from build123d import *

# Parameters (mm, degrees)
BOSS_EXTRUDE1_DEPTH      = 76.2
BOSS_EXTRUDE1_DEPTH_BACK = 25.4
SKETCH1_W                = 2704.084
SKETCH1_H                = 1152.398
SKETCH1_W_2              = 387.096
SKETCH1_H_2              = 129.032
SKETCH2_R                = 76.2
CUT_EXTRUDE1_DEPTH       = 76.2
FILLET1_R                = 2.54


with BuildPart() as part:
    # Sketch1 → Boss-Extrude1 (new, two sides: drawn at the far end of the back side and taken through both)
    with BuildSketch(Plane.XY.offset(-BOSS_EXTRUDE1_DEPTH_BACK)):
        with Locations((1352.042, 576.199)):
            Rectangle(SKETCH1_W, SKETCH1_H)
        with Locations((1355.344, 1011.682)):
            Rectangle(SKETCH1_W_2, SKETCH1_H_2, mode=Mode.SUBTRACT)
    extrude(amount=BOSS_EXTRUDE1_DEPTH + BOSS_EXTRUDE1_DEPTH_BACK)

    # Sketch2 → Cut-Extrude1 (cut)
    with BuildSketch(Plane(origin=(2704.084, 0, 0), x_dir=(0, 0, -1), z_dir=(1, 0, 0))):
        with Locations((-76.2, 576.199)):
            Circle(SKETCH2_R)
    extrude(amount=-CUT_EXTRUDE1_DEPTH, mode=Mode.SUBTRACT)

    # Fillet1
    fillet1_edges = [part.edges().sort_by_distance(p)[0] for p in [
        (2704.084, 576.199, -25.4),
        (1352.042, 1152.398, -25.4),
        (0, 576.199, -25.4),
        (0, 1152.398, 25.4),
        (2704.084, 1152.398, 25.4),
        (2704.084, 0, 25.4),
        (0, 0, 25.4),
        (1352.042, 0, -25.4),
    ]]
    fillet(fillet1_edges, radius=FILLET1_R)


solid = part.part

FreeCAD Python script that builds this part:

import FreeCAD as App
import Part
import Sketcher
Q = App.Units.Quantity


def edges_at(feature, points):
    """Names of the edges that pass closest to the given points."""
    edges = feature.Shape.Edges
    near = lambda p: min(range(len(edges)), key=lambda i: edges[i].distToShape(Part.Vertex(*p))[0])
    return sorted({f"Edge{near(p) + 1}" for p in points})

doc = App.newDocument("Part")
body = doc.addObject("PartDesign::Body", "Body")

# Sketch on XY plane
sketch1 = body.newObject("Sketcher::SketchObject", "Sketch")
sketch1.AttachmentSupport = (doc.getObject("XY_Plane"), [""])
sketch1.MapMode = "FlatFace"
sketch1.addGeometry(Part.LineSegment(App.Vector(0, 1152, 0), App.Vector(0, 0, 0)), False)
sketch1.addGeometry(Part.LineSegment(App.Vector(0, 0, 0), App.Vector(2704, 0, 0)), False)
sketch1.addGeometry(Part.LineSegment(App.Vector(2704, 0, 0), App.Vector(2704, 1152, 0)), False)
sketch1.addGeometry(Part.LineSegment(App.Vector(2704, 1152, 0), App.Vector(0, 1152, 0)), False)
sketch1.addGeometry(Part.LineSegment(App.Vector(1549, 947, 0), App.Vector(1162, 947, 0)), False)
sketch1.addGeometry(Part.LineSegment(App.Vector(1162, 947, 0), App.Vector(1162, 1076, 0)), False)
sketch1.addGeometry(Part.LineSegment(App.Vector(1162, 1076, 0), App.Vector(1549, 1076, 0)), False)
sketch1.addGeometry(Part.LineSegment(App.Vector(1549, 1076, 0), App.Vector(1549, 947, 0)), False)
sketch1.addConstraint(Sketcher.Constraint("Coincident", 0, 2, 1, 1))
sketch1.addConstraint(Sketcher.Constraint("Coincident", 1, 2, 2, 1))
sketch1.addConstraint(Sketcher.Constraint("Coincident", 2, 2, 3, 1))
sketch1.addConstraint(Sketcher.Constraint("Coincident", 3, 2, 0, 1))
sketch1.addConstraint(Sketcher.Constraint("Coincident", 4, 2, 5, 1))
sketch1.addConstraint(Sketcher.Constraint("Coincident", 5, 2, 6, 1))
sketch1.addConstraint(Sketcher.Constraint("Coincident", 6, 2, 7, 1))
sketch1.addConstraint(Sketcher.Constraint("Coincident", 7, 2, 4, 1))
sketch1.addConstraint(Sketcher.Constraint("Vertical", 0))
sketch1.addConstraint(Sketcher.Constraint("Horizontal", 1))
sketch1.addConstraint(Sketcher.Constraint("Vertical", 2))
sketch1.addConstraint(Sketcher.Constraint("Horizontal", 3))
sketch1.addConstraint(Sketcher.Constraint("Horizontal", 4))
sketch1.addConstraint(Sketcher.Constraint("Vertical", 5))
sketch1.addConstraint(Sketcher.Constraint("Horizontal", 6))
sketch1.addConstraint(Sketcher.Constraint("Vertical", 7))
sketch1.addConstraint(Sketcher.Constraint("Coincident", 0, 2, -1, 1))
sketch1.addConstraint(Sketcher.Constraint("DistanceY", 5, 2, 3, 2, Q("3 in")))
sketch1.addConstraint(Sketcher.Constraint("DistanceX", 1, 1, 1, 2, Q("106.46 in")))
sketch1.addConstraint(Sketcher.Constraint("DistanceX", 4, 2, 4, 1, Q("15.24 in")))
sketch1.addConstraint(Sketcher.Constraint("DistanceY", 0, 2, 0, 1, Q("45.37 in")))
sketch1.addConstraint(Sketcher.Constraint("DistanceY", 5, 1, 5, 2, Q("5.08 in")))
sketch1.addConstraint(Sketcher.Constraint("DistanceX", -1, 1, 4, 2, Q("45.74 in")))
pad1 = body.newObject("PartDesign::Pad", "Pad")
pad1.Profile = sketch1
pad1.Type = "TwoLengths"
pad1.Length = Q("3 in")
pad1.Length2 = Q("1 in")

# Sketch on YZ plane
sketch2 = body.newObject("Sketcher::SketchObject", "Sketch001")
sketch2.AttachmentSupport = (doc.getObject("YZ_Plane"), [""])
sketch2.MapMode = "FlatFace"
sketch2.AttachmentOffset = App.Placement(App.Vector(0, 0, 106.46 * 25.4), App.Rotation())
sketch2.addGeometry(Part.Circle(App.Vector(576, 76, 0), App.Vector(0, 0, 1), 76), False)
sketch2.addConstraint(Sketcher.Constraint("Diameter", 0, Q("6 in")))
sketch2.addConstraint(Sketcher.Constraint("DistanceY", -1, 1, 0, 3, Q("3 in")))
sketch2.addConstraint(Sketcher.Constraint("DistanceX", -1, 1, 0, 3, Q("22.685 in")))
pocket1 = body.newObject("PartDesign::Pocket", "Pocket")
pocket1.Profile = sketch2
pocket1.Length = Q("3 in")
doc.recompute()

fillet = body.newObject("PartDesign::Fillet", "Fillet")
fillet.Base = (pocket1, edges_at(pocket1, [
    (2704.084, 576.199, -25.4),
    (1352.042, 1152.398, -25.4),
    (0, 576.199, -25.4),
    (0, 1152.398, 25.4),
    (2704.084, 1152.398, 25.4),
    (2704.084, 0, 25.4),
    (0, 0, 25.4),
    (1352.042, 0, -25.4),
]))
fillet.Radius = Q("0.1 in")

doc.recompute()
